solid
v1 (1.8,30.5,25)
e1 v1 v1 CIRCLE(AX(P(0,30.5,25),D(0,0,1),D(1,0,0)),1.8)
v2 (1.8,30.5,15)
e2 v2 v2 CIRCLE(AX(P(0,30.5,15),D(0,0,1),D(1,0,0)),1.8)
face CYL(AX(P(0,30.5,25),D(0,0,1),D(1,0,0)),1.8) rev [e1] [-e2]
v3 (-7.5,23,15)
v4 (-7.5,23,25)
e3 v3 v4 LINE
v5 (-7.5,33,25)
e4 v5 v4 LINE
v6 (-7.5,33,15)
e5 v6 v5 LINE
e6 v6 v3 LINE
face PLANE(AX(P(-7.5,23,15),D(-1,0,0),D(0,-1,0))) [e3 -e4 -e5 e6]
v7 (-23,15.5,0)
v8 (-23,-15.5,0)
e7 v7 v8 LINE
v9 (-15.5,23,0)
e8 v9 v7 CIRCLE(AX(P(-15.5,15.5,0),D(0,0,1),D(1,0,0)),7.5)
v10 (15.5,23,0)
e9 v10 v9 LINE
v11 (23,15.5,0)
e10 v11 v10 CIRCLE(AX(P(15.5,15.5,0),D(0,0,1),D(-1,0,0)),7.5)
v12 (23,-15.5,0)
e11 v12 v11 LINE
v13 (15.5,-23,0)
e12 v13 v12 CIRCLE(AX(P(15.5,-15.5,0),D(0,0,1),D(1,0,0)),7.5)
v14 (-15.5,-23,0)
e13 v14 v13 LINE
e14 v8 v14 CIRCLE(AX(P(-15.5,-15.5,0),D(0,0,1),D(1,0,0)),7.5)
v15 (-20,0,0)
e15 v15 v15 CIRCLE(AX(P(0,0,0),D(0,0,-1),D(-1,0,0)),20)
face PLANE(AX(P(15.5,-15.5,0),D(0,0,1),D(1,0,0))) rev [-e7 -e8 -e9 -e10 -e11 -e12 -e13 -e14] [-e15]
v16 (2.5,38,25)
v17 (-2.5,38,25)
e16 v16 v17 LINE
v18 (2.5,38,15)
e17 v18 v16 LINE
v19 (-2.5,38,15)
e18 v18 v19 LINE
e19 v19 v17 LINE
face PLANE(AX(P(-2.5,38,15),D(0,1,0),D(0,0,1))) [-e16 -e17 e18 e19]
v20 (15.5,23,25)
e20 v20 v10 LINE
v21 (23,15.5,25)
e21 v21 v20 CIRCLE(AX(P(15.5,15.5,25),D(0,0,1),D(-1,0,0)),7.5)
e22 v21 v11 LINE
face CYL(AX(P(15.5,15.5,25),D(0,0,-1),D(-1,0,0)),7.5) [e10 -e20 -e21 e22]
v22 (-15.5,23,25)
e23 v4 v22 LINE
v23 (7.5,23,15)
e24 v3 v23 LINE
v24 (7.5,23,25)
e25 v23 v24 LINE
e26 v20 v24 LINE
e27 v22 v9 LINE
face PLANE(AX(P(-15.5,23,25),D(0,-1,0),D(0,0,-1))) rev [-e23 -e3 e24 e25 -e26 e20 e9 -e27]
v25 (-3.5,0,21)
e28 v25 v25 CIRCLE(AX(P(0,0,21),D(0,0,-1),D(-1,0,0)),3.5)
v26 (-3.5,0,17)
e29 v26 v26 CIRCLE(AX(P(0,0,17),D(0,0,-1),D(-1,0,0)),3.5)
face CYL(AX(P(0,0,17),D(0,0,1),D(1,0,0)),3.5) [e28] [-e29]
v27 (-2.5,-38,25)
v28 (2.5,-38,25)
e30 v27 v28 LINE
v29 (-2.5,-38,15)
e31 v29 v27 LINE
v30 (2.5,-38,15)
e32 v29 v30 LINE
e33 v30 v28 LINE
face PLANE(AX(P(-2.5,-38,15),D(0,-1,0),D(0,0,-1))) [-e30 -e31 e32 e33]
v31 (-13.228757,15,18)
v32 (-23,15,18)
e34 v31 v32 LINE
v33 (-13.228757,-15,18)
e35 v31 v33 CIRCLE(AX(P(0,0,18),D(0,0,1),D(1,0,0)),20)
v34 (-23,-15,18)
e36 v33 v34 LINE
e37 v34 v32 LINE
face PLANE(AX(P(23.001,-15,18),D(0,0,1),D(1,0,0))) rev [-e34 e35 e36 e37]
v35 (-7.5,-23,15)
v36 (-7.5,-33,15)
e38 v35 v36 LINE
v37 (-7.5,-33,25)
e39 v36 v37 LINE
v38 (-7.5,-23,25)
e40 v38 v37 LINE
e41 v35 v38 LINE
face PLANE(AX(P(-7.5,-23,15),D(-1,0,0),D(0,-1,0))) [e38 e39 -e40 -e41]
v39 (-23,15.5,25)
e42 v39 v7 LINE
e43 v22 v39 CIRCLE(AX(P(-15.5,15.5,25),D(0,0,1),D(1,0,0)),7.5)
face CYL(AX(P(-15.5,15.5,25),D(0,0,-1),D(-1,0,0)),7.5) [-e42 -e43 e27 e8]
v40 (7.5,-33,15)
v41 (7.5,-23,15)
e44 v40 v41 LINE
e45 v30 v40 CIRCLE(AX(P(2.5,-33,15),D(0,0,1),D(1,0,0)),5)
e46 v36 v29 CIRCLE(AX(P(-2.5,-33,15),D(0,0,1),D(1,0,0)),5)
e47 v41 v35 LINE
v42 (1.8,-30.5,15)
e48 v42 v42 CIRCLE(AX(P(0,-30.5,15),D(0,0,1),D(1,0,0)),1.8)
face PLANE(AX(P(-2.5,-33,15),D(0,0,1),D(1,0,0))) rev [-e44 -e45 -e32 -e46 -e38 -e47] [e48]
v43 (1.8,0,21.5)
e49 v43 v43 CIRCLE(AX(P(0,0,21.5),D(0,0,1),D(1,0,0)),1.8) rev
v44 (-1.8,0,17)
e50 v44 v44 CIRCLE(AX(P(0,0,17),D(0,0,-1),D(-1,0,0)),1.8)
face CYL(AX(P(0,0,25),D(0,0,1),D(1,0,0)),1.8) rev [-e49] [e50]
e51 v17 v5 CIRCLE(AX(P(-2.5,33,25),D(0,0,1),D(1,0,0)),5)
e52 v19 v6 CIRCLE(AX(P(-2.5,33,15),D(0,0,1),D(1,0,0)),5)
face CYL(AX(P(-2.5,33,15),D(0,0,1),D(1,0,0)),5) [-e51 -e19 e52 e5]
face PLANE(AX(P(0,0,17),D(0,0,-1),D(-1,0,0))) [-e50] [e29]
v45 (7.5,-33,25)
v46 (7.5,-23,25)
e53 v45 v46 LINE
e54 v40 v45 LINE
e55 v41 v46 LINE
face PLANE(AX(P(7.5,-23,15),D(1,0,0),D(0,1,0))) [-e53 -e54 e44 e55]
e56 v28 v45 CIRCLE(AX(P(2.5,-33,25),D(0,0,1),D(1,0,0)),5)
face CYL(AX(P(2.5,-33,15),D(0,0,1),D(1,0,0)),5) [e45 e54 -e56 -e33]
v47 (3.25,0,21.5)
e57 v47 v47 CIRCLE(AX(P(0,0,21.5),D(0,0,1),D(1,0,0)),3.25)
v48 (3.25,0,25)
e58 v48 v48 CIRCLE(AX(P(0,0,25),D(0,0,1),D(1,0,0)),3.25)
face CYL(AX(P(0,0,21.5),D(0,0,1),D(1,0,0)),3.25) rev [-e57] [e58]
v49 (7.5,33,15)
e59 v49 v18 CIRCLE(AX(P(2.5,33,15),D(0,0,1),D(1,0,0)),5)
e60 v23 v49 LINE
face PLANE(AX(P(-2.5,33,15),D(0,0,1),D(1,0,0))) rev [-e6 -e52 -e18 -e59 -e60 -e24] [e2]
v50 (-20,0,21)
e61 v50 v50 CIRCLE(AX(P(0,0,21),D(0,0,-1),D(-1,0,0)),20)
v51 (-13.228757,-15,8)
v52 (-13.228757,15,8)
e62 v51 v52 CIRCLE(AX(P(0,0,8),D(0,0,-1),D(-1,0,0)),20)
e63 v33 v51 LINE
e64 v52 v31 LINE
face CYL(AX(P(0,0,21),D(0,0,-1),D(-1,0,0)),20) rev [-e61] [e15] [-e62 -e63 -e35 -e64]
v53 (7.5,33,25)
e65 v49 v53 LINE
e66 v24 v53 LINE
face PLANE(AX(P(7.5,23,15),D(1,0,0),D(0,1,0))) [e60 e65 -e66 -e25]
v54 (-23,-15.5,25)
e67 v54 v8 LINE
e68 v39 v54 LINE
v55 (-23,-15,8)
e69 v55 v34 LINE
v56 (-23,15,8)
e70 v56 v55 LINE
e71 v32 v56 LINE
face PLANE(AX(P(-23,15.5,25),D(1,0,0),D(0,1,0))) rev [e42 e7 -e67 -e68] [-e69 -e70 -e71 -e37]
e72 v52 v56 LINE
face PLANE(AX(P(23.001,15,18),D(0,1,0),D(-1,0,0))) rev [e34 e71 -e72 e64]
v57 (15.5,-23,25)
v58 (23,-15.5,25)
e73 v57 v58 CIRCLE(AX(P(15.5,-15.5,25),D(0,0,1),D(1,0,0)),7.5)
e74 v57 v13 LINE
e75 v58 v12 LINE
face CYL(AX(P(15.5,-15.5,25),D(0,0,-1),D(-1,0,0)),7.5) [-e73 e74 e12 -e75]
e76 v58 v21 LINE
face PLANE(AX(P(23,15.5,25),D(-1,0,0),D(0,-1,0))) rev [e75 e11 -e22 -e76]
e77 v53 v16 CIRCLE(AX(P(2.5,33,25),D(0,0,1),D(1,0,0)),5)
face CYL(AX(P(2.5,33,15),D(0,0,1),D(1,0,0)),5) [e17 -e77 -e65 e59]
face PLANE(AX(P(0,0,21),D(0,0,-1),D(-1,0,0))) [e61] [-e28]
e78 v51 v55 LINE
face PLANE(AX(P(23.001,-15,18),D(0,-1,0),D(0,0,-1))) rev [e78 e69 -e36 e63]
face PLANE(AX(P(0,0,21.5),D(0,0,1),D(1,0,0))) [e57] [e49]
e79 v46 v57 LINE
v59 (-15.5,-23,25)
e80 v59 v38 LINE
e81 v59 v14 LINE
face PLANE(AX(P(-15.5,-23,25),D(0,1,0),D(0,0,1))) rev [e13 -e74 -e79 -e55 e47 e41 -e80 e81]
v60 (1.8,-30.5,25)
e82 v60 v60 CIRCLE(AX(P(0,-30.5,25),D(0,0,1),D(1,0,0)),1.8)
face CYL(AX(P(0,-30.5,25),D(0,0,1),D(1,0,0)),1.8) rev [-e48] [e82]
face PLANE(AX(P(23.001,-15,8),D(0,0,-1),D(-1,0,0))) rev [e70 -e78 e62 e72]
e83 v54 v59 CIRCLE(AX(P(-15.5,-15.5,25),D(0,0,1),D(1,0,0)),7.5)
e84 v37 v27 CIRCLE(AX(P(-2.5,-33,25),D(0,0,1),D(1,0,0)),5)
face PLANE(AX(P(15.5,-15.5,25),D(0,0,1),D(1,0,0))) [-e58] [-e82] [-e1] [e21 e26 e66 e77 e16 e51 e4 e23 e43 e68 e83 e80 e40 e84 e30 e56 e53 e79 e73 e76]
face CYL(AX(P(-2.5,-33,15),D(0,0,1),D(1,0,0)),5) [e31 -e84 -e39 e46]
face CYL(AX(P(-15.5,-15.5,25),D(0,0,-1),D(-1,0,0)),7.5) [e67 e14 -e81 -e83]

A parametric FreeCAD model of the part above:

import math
import FreeCAD as App
import Part
import Sketcher

V = App.Vector
Q = App.Units.Quantity

doc = App.newDocument("Part")
params = doc.addObject("Spreadsheet::Sheet", "Params")
for row, (alias, value) in enumerate([
    ("sketch1_radius", "7.5 mm"),
    ("sketch1_width", "31 mm"),
    ("pad1_length", "25 mm"),
    ("sketch2_diameter", "40 mm"),
    ("pocket1_length", "21 mm"),
    ("sketch3_width", "30 mm"),
    ("sketch3_height", "10 mm"),
    ("sketch4_radius", "5 mm"),
    ("sketch4_width", "15 mm"),
    ("sketch4_height", "10 mm"),
    ("pad2_length", "10 mm"),
    ("sketch5_diameter", "7 mm"),
    ("pad3_length", "4 mm"),
    ("sketch6_diameter", "3.6 mm"),
    ("hole_diameter", "3.6 mm"),
    ("hole_depth", "8 mm"),
    ("sketch7_diameter", "3.6 mm"),
    ("hole2_diameter", "3.6 mm"),
    ("hole2_depth", "10 mm"),
    ("sketch8_diameter", "3.6 mm"),
    ("hole3_diameter", "3.6 mm"),
    ("hole3_depth", "10 mm"),
    ("sketch9_diameter", "6.5 mm"),
    ("pocket3_length", "3.5 mm"),
], start=1):
    params.set(f"A{row}", alias)
    params.set(f"B{row}", "=" + value)
    params.setAlias(f"B{row}", alias)

body = doc.addObject("PartDesign::Body", "Body")

# Sketch on XY plane
sketch1 = doc.addObject("Sketcher::SketchObject", "Sketch")
body.addObject(sketch1)
sketch1.AttachmentSupport = (doc.XY_Plane, [""])
sketch1.MapMode = "FlatFace"
sketch1.addGeometry(Part.LineSegment(V(15.5, 23, 0), V(-15.5, 23, 0)), False)
sketch1.addGeometry(Part.ArcOfCircle(Part.Circle(V(-15.5, 15.5, 0), V(0, 0, 1), 7.5), math.radians(90), math.radians(180)), False)
sketch1.addGeometry(Part.LineSegment(V(-23, 15.5, 0), V(-23, -15.5, 0)), False)
sketch1.addGeometry(Part.ArcOfCircle(Part.Circle(V(-15.5, -15.5, 0), V(0, 0, 1), 7.5), math.radians(180), math.radians(270)), False)
sketch1.addGeometry(Part.LineSegment(V(-15.5, -23, 0), V(15.5, -23, 0)), False)
sketch1.addGeometry(Part.ArcOfCircle(Part.Circle(V(15.5, -15.5, 0), V(0, 0, 1), 7.5), math.radians(-90), math.radians(0)), False)
sketch1.addGeometry(Part.LineSegment(V(23, -15.5, 0), V(23, 15.5, 0)), False)
sketch1.addGeometry(Part.ArcOfCircle(Part.Circle(V(15.5, 15.5, 0), V(0, 0, 1), 7.5), math.radians(0), math.radians(90)), False)
sketch1.addConstraint(Sketcher.Constraint("Tangent", 0, 2, 1, 1))
sketch1.addConstraint(Sketcher.Constraint("Tangent", 1, 2, 2, 1))
sketch1.addConstraint(Sketcher.Constraint("Tangent", 2, 2, 3, 1))
sketch1.addConstraint(Sketcher.Constraint("Tangent", 3, 2, 4, 1))
sketch1.addConstraint(Sketcher.Constraint("Tangent", 4, 2, 5, 1))
sketch1.addConstraint(Sketcher.Constraint("Tangent", 5, 2, 6, 1))
sketch1.addConstraint(Sketcher.Constraint("Tangent", 6, 2, 7, 1))
sketch1.addConstraint(Sketcher.Constraint("Tangent", 7, 2, 0, 1))
sketch1.addConstraint(Sketcher.Constraint("Horizontal", 0))
sketch1.addConstraint(Sketcher.Constraint("Vertical", 2))
sketch1.addConstraint(Sketcher.Constraint("Horizontal", 4))
sketch1.addConstraint(Sketcher.Constraint("Vertical", 6))
sketch1.addConstraint(Sketcher.Constraint("Equal", 1, 3))
sketch1.addConstraint(Sketcher.Constraint("Equal", 3, 5))
sketch1.addConstraint(Sketcher.Constraint("Equal", 5, 7))
sketch1.addConstraint(Sketcher.Constraint("Symmetric", 1, 3, 5, 3, -1, 1))
sketch1.addConstraint(Sketcher.Constraint("Equal", 4, 2))
sketch1.addConstraint(Sketcher.Constraint("Radius", 1, Q("7.5 mm")))
sketch1.addConstraint(Sketcher.Constraint("DistanceX", 0, 2, 0, 1, Q("31 mm")))
sketch1.setExpression("Constraints[17]", "Params.sketch1_radius")
sketch1.setExpression("Constraints[18]", "Params.sketch1_width")
pad1 = doc.addObject("PartDesign::Pad", "Pad")
body.addObject(pad1)
pad1.Profile = sketch1
pad1.setExpression("Length", "Params.pad1_length")

# Sketch on XY plane
sketch2 = doc.addObject("Sketcher::SketchObject", "Sketch001")
body.addObject(sketch2)
sketch2.AttachmentSupport = (doc.XY_Plane, [""])
sketch2.MapMode = "FlatFace"
sketch2.addGeometry(Part.Circle(V(0, 0, 0), V(0, 0, 1), 20), False)
sketch2.addConstraint(Sketcher.Constraint("Coincident", 0, 3, -1, 1))
sketch2.addConstraint(Sketcher.Constraint("Diameter", 0, Q("40 mm")))
sketch2.setExpression("Constraints[1]", "Params.sketch2_diameter")
pocket1 = doc.addObject("PartDesign::Pocket", "Pocket")
body.addObject(pocket1)
pocket1.Profile = sketch2
pocket1.setExpression("Length", "Params.pocket1_length")
pocket1.Reversed = True

# Sketch on YZ plane
sketch3 = doc.addObject("Sketcher::SketchObject", "Sketch002")
body.addObject(sketch3)
sketch3.AttachmentSupport = (doc.YZ_Plane, [""])
sketch3.MapMode = "FlatFace"
sketch3.AttachmentOffset = App.Placement(V(0, 0, -23), App.Rotation())
sketch3.addGeometry(Part.LineSegment(V(15, 8, 0), V(-15, 8, 0)), False)
sketch3.addGeometry(Part.LineSegment(V(-15, 8, 0), V(-15, 18, 0)), False)
sketch3.addGeometry(Part.LineSegment(V(-15, 18, 0), V(15, 18, 0)), False)
sketch3.addGeometry(Part.LineSegment(V(15, 18, 0), V(15, 8, 0)), False)
sketch3.addConstraint(Sketcher.Constraint("Coincident", 0, 2, 1, 1))
sketch3.addConstraint(Sketcher.Constraint("Coincident", 1, 2, 2, 1))
sketch3.addConstraint(Sketcher.Constraint("Coincident", 2, 2, 3, 1))
sketch3.addConstraint(Sketcher.Constraint("Coincident", 3, 2, 0, 1))
sketch3.addConstraint(Sketcher.Constraint("Horizontal", 0))
sketch3.addConstraint(Sketcher.Constraint("Vertical", 1))
sketch3.addConstraint(Sketcher.Constraint("Horizontal", 2))
sketch3.addConstraint(Sketcher.Constraint("Vertical", 3))
sketch3.addConstraint(Sketcher.Constraint("DistanceX", 0, 2, 0, 1, Q("30 mm")))
sketch3.addConstraint(Sketcher.Constraint("DistanceY", 1, 1, 1, 2, Q("10 mm")))
sketch3.addConstraint(Sketcher.Constraint("DistanceX", 0, 2, -1, 1, Q("15 mm")))
sketch3.addConstraint(Sketcher.Constraint("DistanceY", -1, 1, 0, 2, Q("8 mm")))
sketch3.setExpression("Constraints[8]", "Params.sketch3_width")
sketch3.setExpression("Constraints[9]", "Params.sketch3_height")
pocket2 = doc.addObject("PartDesign::Pocket", "Pocket001")
body.addObject(pocket2)
pocket2.Profile = sketch3
pocket2.Type = "UpToFirst"
pocket2.Reversed = True

# Sketch on XY plane
sketch4 = doc.addObject("Sketcher::SketchObject", "Sketch003")
body.addObject(sketch4)
sketch4.AttachmentSupport = (doc.XY_Plane, [""])
sketch4.MapMode = "FlatFace"
sketch4.AttachmentOffset = App.Placement(V(0, 0, 25), App.Rotation())
sketch4.addGeometry(Part.LineSegment(V(7.5, -23, 0), V(-7.5, -23, 0)), False)
sketch4.addGeometry(Part.LineSegment(V(-7.5, -23, 0), V(-7.5, -33, 0)), False)
sketch4.addGeometry(Part.ArcOfCircle(Part.Circle(V(-2.5, -33, 0), V(0, 0, 1), 5), math.radians(180), math.radians(270)), False)
sketch4.addGeometry(Part.LineSegment(V(-2.5, -38, 0), V(2.5, -38, 0)), False)
sketch4.addGeometry(Part.ArcOfCircle(Part.Circle(V(2.5, -33, 0), V(0, 0, 1), 5), math.radians(-90), math.radians(0)), False)
sketch4.addGeometry(Part.LineSegment(V(7.5, -33, 0), V(7.5, -23, 0)), False)
sketch4.addGeometry(Part.LineSegment(V(-7.5, 23, 0), V(7.5, 23, 0)), False)
sketch4.addGeometry(Part.LineSegment(V(7.5, 23, 0), V(7.5, 33, 0)), False)
sketch4.addGeometry(Part.ArcOfCircle(Part.Circle(V(2.5, 33, 0), V(0, 0, 1), 5), math.radians(0), math.radians(90)), False)
sketch4.addGeometry(Part.LineSegment(V(2.5, 38, 0), V(-2.5, 38, 0)), False)
sketch4.addGeometry(Part.ArcOfCircle(Part.Circle(V(-2.5, 33, 0), V(0, 0, 1), 5), math.radians(90), math.radians(180)), False)
sketch4.addGeometry(Part.LineSegment(V(-7.5, 33, 0), V(-7.5, 23, 0)), False)
sketch4.addConstraint(Sketcher.Constraint("Coincident", 0, 2, 1, 1))
sketch4.addConstraint(Sketcher.Constraint("Tangent", 1, 2, 2, 1))
sketch4.addConstraint(Sketcher.Constraint("Tangent", 2, 2, 3, 1))
sketch4.addConstraint(Sketcher.Constraint("Tangent", 3, 2, 4, 1))
sketch4.addConstraint(Sketcher.Constraint("Tangent", 4, 2, 5, 1))
sketch4.addConstraint(Sketcher.Constraint("Coincident", 5, 2, 0, 1))
sketch4.addConstraint(Sketcher.Constraint("Coincident", 6, 2, 7, 1))
sketch4.addConstraint(Sketcher.Constraint("Tangent", 7, 2, 8, 1))
sketch4.addConstraint(Sketcher.Constraint("Tangent", 8, 2, 9, 1))
sketch4.addConstraint(Sketcher.Constraint("Tangent", 9, 2, 10, 1))
sketch4.addConstraint(Sketcher.Constraint("Tangent", 10, 2, 11, 1))
sketch4.addConstraint(Sketcher.Constraint("Coincident", 11, 2, 6, 1))
sketch4.addConstraint(Sketcher.Constraint("Horizontal", 0))
sketch4.addConstraint(Sketcher.Constraint("Vertical", 1))
sketch4.addConstraint(Sketcher.Constraint("Horizontal", 3))
sketch4.addConstraint(Sketcher.Constraint("Vertical", 5))
sketch4.addConstraint(Sketcher.Constraint("Horizontal", 6))
sketch4.addConstraint(Sketcher.Constraint("Vertical", 7))
sketch4.addConstraint(Sketcher.Constraint("Horizontal", 9))
sketch4.addConstraint(Sketcher.Constraint("Vertical", 11))
sketch4.addConstraint(Sketcher.Constraint("Equal", 2, 4))
sketch4.addConstraint(Sketcher.Constraint("Equal", 4, 8))
sketch4.addConstraint(Sketcher.Constraint("Equal", 8, 10))
sketch4.addConstraint(Sketcher.Constraint("Symmetric", 2, 3, 8, 3, -1, 1))
sketch4.addConstraint(Sketcher.Constraint("Symmetric", 5, 2, 11, 2, -1, 1))
sketch4.addConstraint(Sketcher.Constraint("Vertical", 4, 3, 8, 3))
sketch4.addConstraint(Sketcher.Constraint("Radius", 2, Q("5 mm")))
sketch4.addConstraint(Sketcher.Constraint("DistanceX", 0, 2, 0, 1, Q("15 mm")))
sketch4.addConstraint(Sketcher.Constraint("DistanceY", 1, 2, 1, 1, Q("10 mm")))
sketch4.addConstraint(Sketcher.Constraint("DistanceY", 2, 3, -1, 1, Q("33 mm")))
sketch4.setExpression("Constraints[26]", "Params.sketch4_radius")
sketch4.setExpression("Constraints[27]", "Params.sketch4_width")
sketch4.setExpression("Constraints[28]", "Params.sketch4_height")
pad2 = doc.addObject("PartDesign::Pad", "Pad001")
body.addObject(pad2)
pad2.Profile = sketch4
pad2.setExpression("Length", "Params.pad2_length")
pad2.Reversed = True

# Sketch on XY plane
sketch5 = doc.addObject("Sketcher::SketchObject", "Sketch004")
body.addObject(sketch5)
sketch5.AttachmentSupport = (doc.XY_Plane, [""])
sketch5.MapMode = "FlatFace"
sketch5.AttachmentOffset = App.Placement(V(0, 0, 21), App.Rotation())
sketch5.addGeometry(Part.Circle(V(0, 0, 0), V(0, 0, 1), 3.5), False)
sketch5.addConstraint(Sketcher.Constraint("Coincident", 0, 3, -1, 1))
sketch5.addConstraint(Sketcher.Constraint("Diameter", 0, Q("7 mm")))
sketch5.setExpression("Constraints[1]", "Params.sketch5_diameter")
pad3 = doc.addObject("PartDesign::Pad", "Pad002")
body.addObject(pad3)
pad3.Profile = sketch5
pad3.setExpression("Length", "Params.pad3_length")
pad3.Reversed = True

# Sketch on XY plane
sketch6 = doc.addObject("Sketcher::SketchObject", "Sketch005")
body.addObject(sketch6)
sketch6.AttachmentSupport = (doc.XY_Plane, [""])
sketch6.MapMode = "FlatFace"
sketch6.AttachmentOffset = App.Placement(V(0, 0, 25), App.Rotation())
sketch6.addGeometry(Part.Circle(V(0, 0, 0), V(0, 0, 1), 1.8), False)
sketch6.addConstraint(Sketcher.Constraint("Coincident", 0, 3, -1, 1))
sketch6.addConstraint(Sketcher.Constraint("Diameter", 0, Q("3.6 mm")))
sketch6.setExpression("Constraints[1]", "Params.sketch6_diameter")
doc.recompute()
hole = doc.addObject("PartDesign::Hole", "Hole")
body.addObject(hole)
hole.Profile = sketch6
hole.ThreadType = "None"
hole.setExpression("Diameter", "Params.hole_diameter")
hole.DepthType = "Dimension"
hole.setExpression("Depth", "Params.hole_depth")
hole.DrillPoint = "Flat"

# Sketch on XY plane
sketch7 = doc.addObject("Sketcher::SketchObject", "Sketch006")
body.addObject(sketch7)
sketch7.AttachmentSupport = (doc.XY_Plane, [""])
sketch7.MapMode = "FlatFace"
sketch7.AttachmentOffset = App.Placement(V(0, 0, 25), App.Rotation())
sketch7.addGeometry(Part.Circle(V(0, -30.5, 0), V(0, 0, 1), 1.8), False)
sketch7.addConstraint(Sketcher.Constraint("PointOnObject", 0, 3, -2))
sketch7.addConstraint(Sketcher.Constraint("Diameter", 0, Q("3.6 mm")))
sketch7.addConstraint(Sketcher.Constraint("DistanceY", 0, 3, -1, 1, Q("30.5 mm")))
sketch7.setExpression("Constraints[1]", "Params.sketch7_diameter")
doc.recompute()
hole2 = doc.addObject("PartDesign::Hole", "Hole001")
body.addObject(hole2)
hole2.Profile = sketch7
hole2.ThreadType = "None"
hole2.setExpression("Diameter", "Params.hole2_diameter")
hole2.DepthType = "Dimension"
hole2.setExpression("Depth", "Params.hole2_depth")
hole2.DrillPoint = "Flat"

# Sketch on XY plane
sketch8 = doc.addObject("Sketcher::SketchObject", "Sketch007")
body.addObject(sketch8)
sketch8.AttachmentSupport = (doc.XY_Plane, [""])
sketch8.MapMode = "FlatFace"
sketch8.AttachmentOffset = App.Placement(V(0, 0, 25), App.Rotation())
sketch8.addGeometry(Part.Circle(V(0, 30.5, 0), V(0, 0, 1), 1.8), False)
sketch8.addConstraint(Sketcher.Constraint("PointOnObject", 0, 3, -2))
sketch8.addConstraint(Sketcher.Constraint("Diameter", 0, Q("3.6 mm")))
sketch8.addConstraint(Sketcher.Constraint("DistanceY", -1, 1, 0, 3, Q("30.5 mm")))
sketch8.setExpression("Constraints[1]", "Params.sketch8_diameter")
doc.recompute()
hole3 = doc.addObject("PartDesign::Hole", "Hole002")
body.addObject(hole3)
hole3.Profile = sketch8
hole3.ThreadType = "None"
hole3.setExpression("Diameter", "Params.hole3_diameter")
hole3.DepthType = "Dimension"
hole3.setExpression("Depth", "Params.hole3_depth")
hole3.DrillPoint = "Flat"

# Sketch on XY plane
sketch9 = doc.addObject("Sketcher::SketchObject", "Sketch008")
body.addObject(sketch9)
sketch9.AttachmentSupport = (doc.XY_Plane, [""])
sketch9.MapMode = "FlatFace"
sketch9.AttachmentOffset = App.Placement(V(0, 0, 25), App.Rotation())
sketch9.addGeometry(Part.Circle(V(0, 0, 0), V(0, 0, 1), 3.25), False)
sketch9.addConstraint(Sketcher.Constraint("Coincident", 0, 3, -1, 1))
sketch9.addConstraint(Sketcher.Constraint("Diameter", 0, Q("6.5 mm")))
sketch9.setExpression("Constraints[1]", "Params.sketch9_diameter")
pocket3 = doc.addObject("PartDesign::Pocket", "Pocket002")
body.addObject(pocket3)
pocket3.Profile = sketch9
pocket3.setExpression("Length", "Params.pocket3_length")

doc.recompute()
